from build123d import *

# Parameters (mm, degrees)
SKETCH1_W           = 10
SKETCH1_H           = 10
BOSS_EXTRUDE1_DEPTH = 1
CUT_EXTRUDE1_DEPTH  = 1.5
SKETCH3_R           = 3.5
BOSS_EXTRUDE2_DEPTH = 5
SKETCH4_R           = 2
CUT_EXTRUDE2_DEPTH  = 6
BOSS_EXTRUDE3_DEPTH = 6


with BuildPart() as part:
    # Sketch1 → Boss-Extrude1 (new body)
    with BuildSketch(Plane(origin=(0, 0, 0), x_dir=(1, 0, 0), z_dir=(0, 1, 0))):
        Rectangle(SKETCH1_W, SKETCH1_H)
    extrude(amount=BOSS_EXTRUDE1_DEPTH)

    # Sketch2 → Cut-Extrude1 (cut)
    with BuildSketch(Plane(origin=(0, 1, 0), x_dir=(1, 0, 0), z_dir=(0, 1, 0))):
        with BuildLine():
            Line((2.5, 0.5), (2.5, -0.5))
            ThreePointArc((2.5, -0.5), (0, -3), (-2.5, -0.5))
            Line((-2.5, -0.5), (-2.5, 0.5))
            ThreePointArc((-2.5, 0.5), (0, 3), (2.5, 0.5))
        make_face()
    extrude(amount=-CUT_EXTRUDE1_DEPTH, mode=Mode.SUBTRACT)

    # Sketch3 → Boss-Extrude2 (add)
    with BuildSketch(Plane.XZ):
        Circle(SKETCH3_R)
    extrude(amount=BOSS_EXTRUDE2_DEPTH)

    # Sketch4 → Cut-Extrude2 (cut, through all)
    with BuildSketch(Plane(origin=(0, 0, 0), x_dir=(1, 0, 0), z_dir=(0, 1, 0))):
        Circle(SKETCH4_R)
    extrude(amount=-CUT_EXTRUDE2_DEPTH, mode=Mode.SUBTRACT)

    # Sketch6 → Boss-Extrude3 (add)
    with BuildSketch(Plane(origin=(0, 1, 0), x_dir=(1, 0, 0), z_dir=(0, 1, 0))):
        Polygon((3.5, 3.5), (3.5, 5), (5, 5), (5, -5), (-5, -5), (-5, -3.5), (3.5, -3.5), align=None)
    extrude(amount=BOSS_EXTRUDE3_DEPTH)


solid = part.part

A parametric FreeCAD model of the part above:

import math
import FreeCAD as App
import Part
import Sketcher
from FreeCAD import Vector

doc = App.newDocument("Part")
body = doc.addObject("PartDesign::Body", "Body")

sketch1 = body.newObject("Sketcher::SketchObject", "Sketch")
sketch1.AttachmentSupport = (doc.getObject("XZ_Plane"), [""])
sketch1.MapMode = "FlatFace"
sketch1.addGeometry([
    Part.LineSegment(Vector(-5, -5, 0), Vector(-5, 5, 0)),
    Part.LineSegment(Vector(-5, 5, 0), Vector(5, 5, 0)),
    Part.LineSegment(Vector(5, 5, 0), Vector(5, -5, 0)),
    Part.LineSegment(Vector(5, -5, 0), Vector(-5, -5, 0)),
], False)
sketch1.addConstraint([
    Sketcher.Constraint("Coincident", 0, 2, 1, 1),
    Sketcher.Constraint("Coincident", 1, 2, 2, 1),
    Sketcher.Constraint("Coincident", 2, 2, 3, 1),
    Sketcher.Constraint("Coincident", 3, 2, 0, 1),
    Sketcher.Constraint("Vertical", 0),
    Sketcher.Constraint("Horizontal", 1),
    Sketcher.Constraint("Vertical", 2),
    Sketcher.Constraint("Horizontal", 3),
    Sketcher.Constraint("Symmetric", 0, 2, 2, 2, -1, 1),
    Sketcher.Constraint("Equal", 3, 0),
    Sketcher.Constraint("DistanceX", 1, 1, 1, 2, 10.0),
])
pad1 = body.newObject("PartDesign::Pad", "Pad")
pad1.Profile = sketch1
pad1.Length = 1
pad1.Reversed = True

sketch2 = body.newObject("Sketcher::SketchObject", "Sketch001")
sketch2.AttachmentSupport = (doc.getObject("XZ_Plane"), [""])
sketch2.MapMode = "FlatFace"
sketch2.AttachmentOffset = App.Placement(Vector(0, 0, -1), App.Rotation())
sketch2.addGeometry([
    Part.LineSegment(Vector(2.5, 0.5, 0), Vector(2.5, -0.5, 0)),
    Part.ArcOfCircle(Part.Circle(Vector(0, -0.5, 0), Vector(0, 0, 1), 2.5), math.radians(180), math.radians(360)),
    Part.LineSegment(Vector(-2.5, -0.5, 0), Vector(-2.5, 0.5, 0)),
    Part.ArcOfCircle(Part.Circle(Vector(0, 0.5, 0), Vector(0, 0, 1), 2.5), math.radians(0), math.radians(180)),
], False)
sketch2.addConstraint([
    Sketcher.Constraint("Tangent", 0, 2, 1, 2),
    Sketcher.Constraint("Tangent", 1, 1, 2, 1),
    Sketcher.Constraint("Tangent", 2, 2, 3, 2),
    Sketcher.Constraint("Tangent", 3, 1, 0, 1),
    Sketcher.Constraint("Vertical", 0),
    Sketcher.Constraint("Vertical", 2),
    Sketcher.Constraint("Symmetric", 1, 3, 3, 3, -1, 1),
    Sketcher.Constraint("Radius", 1, 2.5),
    Sketcher.Constraint("DistanceY", 0, 2, 0, 1, 1.0),
])
pocket1 = body.newObject("PartDesign::Pocket", "Pocket")
pocket1.Profile = sketch2
pocket1.Length = 1.5
pocket1.Reversed = True

sketch3 = body.newObject("Sketcher::SketchObject", "Sketch002")
sketch3.AttachmentSupport = (doc.getObject("XZ_Plane"), [""])
sketch3.MapMode = "FlatFace"
sketch3.addGeometry(Part.Circle(Vector(0, 0, 0), Vector(0, 0, 1), 3.5), False)
sketch3.addConstraint([
    Sketcher.Constraint("Coincident", 0, 3, -1, 1),
    Sketcher.Constraint("Diameter", 0, 7.0),
])
pad2 = body.newObject("PartDesign::Pad", "Pad001")
pad2.Profile = sketch3
pad2.Length = 5

sketch4 = body.newObject("Sketcher::SketchObject", "Sketch003")
sketch4.AttachmentSupport = (doc.getObject("XZ_Plane"), [""])
sketch4.MapMode = "FlatFace"
sketch4.addGeometry(Part.Circle(Vector(0, 0, 0), Vector(0, 0, 1), 2), False)
sketch4.addConstraint([
    Sketcher.Constraint("Coincident", 0, 3, -1, 1),
    Sketcher.Constraint("Diameter", 0, 4.0),
])
pocket2 = body.newObject("PartDesign::Pocket", "Pocket001")
pocket2.Profile = sketch4
pocket2.Type = "ThroughAll"
pocket2.Reversed = True

sketch5 = body.newObject("Sketcher::SketchObject", "Sketch004")
sketch5.AttachmentSupport = (doc.getObject("XZ_Plane"), [""])
sketch5.MapMode = "FlatFace"
sketch5.AttachmentOffset = App.Placement(Vector(0, 0, -1), App.Rotation())
sketch5.addGeometry([
    Part.LineSegment(Vector(3.5, -5, 0), Vector(3.5, 3.5, 0)),
    Part.LineSegment(Vector(3.5, 3.5, 0), Vector(-5, 3.5, 0)),
    Part.LineSegment(Vector(-5, 3.5, 0), Vector(-5, 5, 0)),
    Part.LineSegment(Vector(-5, 5, 0), Vector(5, 5, 0)),
    Part.LineSegment(Vector(5, 5, 0), Vector(5, -5, 0)),
    Part.LineSegment(Vector(5, -5, 0), Vector(3.5, -5, 0)),
], False)
sketch5.addConstraint([
    Sketcher.Constraint("Coincident", 0, 2, 1, 1),
    Sketcher.Constraint("Coincident", 1, 2, 2, 1),
    Sketcher.Constraint("Coincident", 2, 2, 3, 1),
    Sketcher.Constraint("Coincident", 3, 2, 4, 1),
    Sketcher.Constraint("Coincident", 4, 2, 5, 1),
    Sketcher.Constraint("Coincident", 5, 2, 0, 1),
    Sketcher.Constraint("Vertical", 0),
    Sketcher.Constraint("Horizontal", 1),
    Sketcher.Constraint("Vertical", 2),
    Sketcher.Constraint("Horizontal", 3),
    Sketcher.Constraint("Vertical", 4),
    Sketcher.Constraint("Horizontal", 5),
    Sketcher.Constraint("Symmetric", 2, 2, 4, 2, -1, 1),
    Sketcher.Constraint("Equal", 1, 0),
    Sketcher.Constraint("Equal", 5, 2),
    Sketcher.Constraint("DistanceX", 3, 1, 3, 2, 10.0),
    Sketcher.Constraint("DistanceX", 1, 2, 1, 1, 8.5),
])
pad3 = body.newObject("PartDesign::Pad", "Pad002")
pad3.Profile = sketch5
pad3.Length = 6
pad3.Reversed = True

doc.recompute()
